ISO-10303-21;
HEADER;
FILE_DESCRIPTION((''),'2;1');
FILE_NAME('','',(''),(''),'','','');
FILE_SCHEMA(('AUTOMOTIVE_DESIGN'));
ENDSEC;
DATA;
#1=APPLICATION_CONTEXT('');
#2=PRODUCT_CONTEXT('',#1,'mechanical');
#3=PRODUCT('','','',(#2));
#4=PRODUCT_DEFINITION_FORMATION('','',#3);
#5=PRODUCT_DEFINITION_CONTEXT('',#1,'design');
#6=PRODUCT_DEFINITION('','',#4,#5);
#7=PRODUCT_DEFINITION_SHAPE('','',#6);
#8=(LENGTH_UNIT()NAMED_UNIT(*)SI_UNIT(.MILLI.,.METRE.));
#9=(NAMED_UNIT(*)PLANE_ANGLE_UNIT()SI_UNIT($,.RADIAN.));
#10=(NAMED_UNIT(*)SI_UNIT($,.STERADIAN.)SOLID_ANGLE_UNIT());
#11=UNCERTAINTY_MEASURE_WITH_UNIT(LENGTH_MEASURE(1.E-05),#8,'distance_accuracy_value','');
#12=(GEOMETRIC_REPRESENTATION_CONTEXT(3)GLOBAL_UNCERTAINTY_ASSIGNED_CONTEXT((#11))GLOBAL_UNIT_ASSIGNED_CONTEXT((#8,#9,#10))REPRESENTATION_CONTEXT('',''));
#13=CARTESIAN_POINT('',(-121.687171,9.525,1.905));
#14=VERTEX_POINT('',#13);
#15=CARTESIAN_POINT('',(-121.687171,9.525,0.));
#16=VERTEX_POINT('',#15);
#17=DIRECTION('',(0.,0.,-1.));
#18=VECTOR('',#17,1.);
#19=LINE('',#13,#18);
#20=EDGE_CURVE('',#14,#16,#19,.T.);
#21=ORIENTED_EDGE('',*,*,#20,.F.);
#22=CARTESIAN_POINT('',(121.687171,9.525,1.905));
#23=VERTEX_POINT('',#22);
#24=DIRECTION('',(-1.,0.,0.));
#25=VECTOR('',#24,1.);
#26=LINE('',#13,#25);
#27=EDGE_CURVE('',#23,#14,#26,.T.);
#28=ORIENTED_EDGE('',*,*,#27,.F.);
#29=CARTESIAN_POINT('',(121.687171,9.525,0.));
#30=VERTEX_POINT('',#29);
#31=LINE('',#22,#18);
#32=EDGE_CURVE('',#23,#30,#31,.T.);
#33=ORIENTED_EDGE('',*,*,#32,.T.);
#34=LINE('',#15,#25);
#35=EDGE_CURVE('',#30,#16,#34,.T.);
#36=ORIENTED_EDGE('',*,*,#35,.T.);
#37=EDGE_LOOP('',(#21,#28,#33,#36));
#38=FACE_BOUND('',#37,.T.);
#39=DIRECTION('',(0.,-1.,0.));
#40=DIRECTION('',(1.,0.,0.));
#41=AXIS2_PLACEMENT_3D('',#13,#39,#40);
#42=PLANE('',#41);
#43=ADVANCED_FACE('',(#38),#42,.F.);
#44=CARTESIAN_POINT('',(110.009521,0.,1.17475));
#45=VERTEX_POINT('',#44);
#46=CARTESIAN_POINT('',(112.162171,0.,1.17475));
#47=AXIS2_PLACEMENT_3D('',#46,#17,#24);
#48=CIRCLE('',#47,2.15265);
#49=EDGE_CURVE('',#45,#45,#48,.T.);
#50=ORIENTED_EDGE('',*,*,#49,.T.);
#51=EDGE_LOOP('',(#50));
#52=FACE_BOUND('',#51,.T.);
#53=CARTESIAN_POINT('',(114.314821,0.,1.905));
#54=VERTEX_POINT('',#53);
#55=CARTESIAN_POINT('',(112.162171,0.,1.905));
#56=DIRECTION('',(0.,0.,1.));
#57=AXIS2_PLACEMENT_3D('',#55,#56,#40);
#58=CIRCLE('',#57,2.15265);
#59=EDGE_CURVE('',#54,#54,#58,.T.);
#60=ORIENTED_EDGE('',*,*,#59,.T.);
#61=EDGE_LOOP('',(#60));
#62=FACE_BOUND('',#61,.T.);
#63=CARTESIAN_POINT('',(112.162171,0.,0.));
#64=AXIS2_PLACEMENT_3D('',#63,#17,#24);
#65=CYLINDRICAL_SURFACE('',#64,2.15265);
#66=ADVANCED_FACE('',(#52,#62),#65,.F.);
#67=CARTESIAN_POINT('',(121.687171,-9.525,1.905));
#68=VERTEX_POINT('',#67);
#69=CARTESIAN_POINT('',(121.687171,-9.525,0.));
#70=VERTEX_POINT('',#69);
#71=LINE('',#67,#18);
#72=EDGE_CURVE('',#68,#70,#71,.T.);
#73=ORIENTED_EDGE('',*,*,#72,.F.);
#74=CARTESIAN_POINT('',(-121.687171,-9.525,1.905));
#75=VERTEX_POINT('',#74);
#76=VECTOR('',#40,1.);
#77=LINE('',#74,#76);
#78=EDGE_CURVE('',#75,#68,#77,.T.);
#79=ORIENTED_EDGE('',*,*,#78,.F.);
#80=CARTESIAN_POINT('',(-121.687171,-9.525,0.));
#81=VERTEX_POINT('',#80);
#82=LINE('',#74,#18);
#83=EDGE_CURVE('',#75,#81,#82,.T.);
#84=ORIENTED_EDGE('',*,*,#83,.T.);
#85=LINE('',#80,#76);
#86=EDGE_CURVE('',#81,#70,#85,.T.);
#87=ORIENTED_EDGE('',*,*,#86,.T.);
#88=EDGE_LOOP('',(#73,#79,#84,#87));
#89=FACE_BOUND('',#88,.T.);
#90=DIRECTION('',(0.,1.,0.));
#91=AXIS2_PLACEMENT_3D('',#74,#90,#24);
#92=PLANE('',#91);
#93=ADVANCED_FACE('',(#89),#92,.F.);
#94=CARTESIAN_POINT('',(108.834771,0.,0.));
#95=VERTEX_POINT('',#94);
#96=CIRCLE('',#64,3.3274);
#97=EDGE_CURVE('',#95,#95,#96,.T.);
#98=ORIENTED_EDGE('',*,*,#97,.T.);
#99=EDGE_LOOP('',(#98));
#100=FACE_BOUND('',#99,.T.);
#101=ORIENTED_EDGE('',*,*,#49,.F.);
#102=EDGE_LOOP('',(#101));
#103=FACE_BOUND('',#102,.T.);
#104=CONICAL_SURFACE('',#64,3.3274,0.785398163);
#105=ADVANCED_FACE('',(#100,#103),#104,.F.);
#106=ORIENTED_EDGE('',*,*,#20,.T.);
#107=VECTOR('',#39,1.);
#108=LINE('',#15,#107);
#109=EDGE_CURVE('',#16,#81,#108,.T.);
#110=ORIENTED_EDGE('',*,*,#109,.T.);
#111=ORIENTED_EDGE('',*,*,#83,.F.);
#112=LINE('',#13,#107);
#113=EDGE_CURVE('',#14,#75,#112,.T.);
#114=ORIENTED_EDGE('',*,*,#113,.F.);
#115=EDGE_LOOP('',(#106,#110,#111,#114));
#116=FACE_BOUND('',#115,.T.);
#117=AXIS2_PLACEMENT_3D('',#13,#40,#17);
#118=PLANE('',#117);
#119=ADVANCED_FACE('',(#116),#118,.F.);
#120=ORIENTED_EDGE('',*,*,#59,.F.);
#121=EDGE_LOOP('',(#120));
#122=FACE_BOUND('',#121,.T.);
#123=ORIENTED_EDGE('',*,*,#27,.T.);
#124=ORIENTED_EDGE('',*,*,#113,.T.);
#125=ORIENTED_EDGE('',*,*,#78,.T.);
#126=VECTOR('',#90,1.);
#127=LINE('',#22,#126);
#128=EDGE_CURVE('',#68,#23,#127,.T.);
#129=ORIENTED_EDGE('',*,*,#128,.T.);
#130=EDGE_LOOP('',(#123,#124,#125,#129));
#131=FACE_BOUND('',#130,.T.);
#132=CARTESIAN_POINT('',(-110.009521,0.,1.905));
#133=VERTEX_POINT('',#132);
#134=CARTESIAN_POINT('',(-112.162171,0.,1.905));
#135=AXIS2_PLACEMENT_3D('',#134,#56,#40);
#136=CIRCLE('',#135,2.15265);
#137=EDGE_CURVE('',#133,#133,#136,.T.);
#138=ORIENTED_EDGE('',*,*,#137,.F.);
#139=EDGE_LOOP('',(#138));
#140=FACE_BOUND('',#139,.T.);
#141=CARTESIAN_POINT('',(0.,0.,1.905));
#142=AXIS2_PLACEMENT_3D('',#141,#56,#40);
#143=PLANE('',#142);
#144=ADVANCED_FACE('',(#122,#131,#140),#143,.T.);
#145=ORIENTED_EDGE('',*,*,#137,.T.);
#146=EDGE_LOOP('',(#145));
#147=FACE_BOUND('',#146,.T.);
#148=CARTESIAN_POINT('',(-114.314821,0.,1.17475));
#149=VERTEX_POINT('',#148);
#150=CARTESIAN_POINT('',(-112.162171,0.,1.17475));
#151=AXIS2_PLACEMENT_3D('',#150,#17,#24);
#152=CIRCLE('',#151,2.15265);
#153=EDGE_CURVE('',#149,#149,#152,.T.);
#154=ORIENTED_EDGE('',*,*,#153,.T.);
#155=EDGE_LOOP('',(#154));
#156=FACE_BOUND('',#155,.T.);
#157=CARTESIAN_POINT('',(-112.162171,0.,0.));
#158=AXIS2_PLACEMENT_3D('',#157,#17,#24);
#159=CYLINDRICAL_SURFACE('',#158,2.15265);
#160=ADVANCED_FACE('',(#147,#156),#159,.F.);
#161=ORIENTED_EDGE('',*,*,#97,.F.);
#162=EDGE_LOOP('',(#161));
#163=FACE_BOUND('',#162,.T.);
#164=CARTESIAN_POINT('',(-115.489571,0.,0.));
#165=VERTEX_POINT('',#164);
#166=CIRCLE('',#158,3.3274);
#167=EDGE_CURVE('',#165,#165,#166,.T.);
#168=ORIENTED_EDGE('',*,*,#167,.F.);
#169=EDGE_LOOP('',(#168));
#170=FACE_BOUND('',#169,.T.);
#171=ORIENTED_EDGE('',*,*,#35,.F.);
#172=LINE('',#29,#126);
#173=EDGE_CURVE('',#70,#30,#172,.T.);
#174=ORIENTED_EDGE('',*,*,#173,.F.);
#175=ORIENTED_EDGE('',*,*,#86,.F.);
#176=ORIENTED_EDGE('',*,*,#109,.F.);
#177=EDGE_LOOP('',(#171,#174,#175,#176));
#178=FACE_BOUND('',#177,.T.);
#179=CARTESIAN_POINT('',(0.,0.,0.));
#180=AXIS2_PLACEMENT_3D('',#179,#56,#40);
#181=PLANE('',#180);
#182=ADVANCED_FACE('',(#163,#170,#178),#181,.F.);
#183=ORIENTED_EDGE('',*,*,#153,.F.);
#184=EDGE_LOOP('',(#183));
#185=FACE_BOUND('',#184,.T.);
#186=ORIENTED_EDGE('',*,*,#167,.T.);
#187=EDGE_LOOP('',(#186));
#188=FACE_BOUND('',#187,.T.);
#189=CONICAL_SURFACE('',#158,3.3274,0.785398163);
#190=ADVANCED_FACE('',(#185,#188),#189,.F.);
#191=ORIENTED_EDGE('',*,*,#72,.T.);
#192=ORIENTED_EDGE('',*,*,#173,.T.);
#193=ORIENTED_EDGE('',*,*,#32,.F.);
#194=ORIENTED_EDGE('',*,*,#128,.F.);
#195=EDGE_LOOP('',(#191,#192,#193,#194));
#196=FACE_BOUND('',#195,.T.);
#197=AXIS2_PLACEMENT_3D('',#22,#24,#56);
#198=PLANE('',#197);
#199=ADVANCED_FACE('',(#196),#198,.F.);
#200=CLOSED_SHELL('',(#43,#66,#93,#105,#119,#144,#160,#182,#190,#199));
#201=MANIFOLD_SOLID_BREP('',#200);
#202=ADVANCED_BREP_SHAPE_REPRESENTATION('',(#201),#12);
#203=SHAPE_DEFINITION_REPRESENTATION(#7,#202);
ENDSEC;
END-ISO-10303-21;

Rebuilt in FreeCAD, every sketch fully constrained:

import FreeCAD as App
import Part
import Sketcher
Q = App.Units.Quantity


def add_polygon(sketch, points):
    """Adds a closed chain of lines whose ends are joined by coincident constraints."""
    first, n = sketch.GeometryCount, len(points)
    for a, b in zip(points, points[1:] + points[:1]):
        sketch.addGeometry(Part.LineSegment(App.Vector(*a, 0), App.Vector(*b, 0)), False)
    for i in range(n):
        sketch.addConstraint(Sketcher.Constraint("Coincident", first + i, 2, first + (i + 1) % n, 1))

doc = App.newDocument("Part")
body = doc.addObject("PartDesign::Body", "Body")

sketch1 = doc.addObject("Sketcher::SketchObject", "Sketch")
body.addObject(sketch1)
sketch1.AttachmentSupport = (doc.XY_Plane, [""])
sketch1.MapMode = "FlatFace"
add_polygon(sketch1, [(-122, 10), (-122, -10), (122, -10), (122, 10)])
sketch1.addConstraint(Sketcher.Constraint("Vertical", 0))
sketch1.addConstraint(Sketcher.Constraint("Horizontal", 1))
sketch1.addConstraint(Sketcher.Constraint("Vertical", 2))
sketch1.addConstraint(Sketcher.Constraint("Horizontal", 3))
sketch1.addConstraint(Sketcher.Constraint("Symmetric", 0, 2, 2, 2, -1, 1))
sketch1.addConstraint(Sketcher.Constraint("DistanceY", 0, 2, 0, 1, Q("0.75 in")))
sketch1.addConstraint(Sketcher.Constraint("DistanceX", 1, 1, 1, 2, Q("243.374342 mm")))
pad1 = doc.addObject("PartDesign::Pad", "Pad")
body.addObject(pad1)
pad1.Profile = sketch1
pad1.Length = Q("0.075 in")

sketch2 = doc.addObject("Sketcher::SketchObject", "Sketch001")
body.addObject(sketch2)
sketch2.AttachmentSupport = (doc.YZ_Plane, [""])
sketch2.MapMode = "FlatFace"
sketch2.AttachmentOffset = App.Placement(App.Vector(0, 0, -112.162171), App.Rotation())
add_polygon(sketch2, [(0, 1.9), (0, 0), (3.3, 0), (2.2, 1.2), (2.2, 1.9)])
sketch2.addConstraint(Sketcher.Constraint("Vertical", 0))
sketch2.addConstraint(Sketcher.Constraint("Horizontal", 1))
sketch2.addConstraint(Sketcher.Constraint("Vertical", 3))
sketch2.addConstraint(Sketcher.Constraint("Horizontal", 4))
sketch2.addConstraint(Sketcher.Constraint("Coincident", 0, 2, -1, 1))
sketch2.addConstraint(Sketcher.Constraint("Angle", 2, Q("135 deg")))
sketch2.addConstraint(Sketcher.Constraint("DistanceX", 1, 1, 1, 2, Q("0.131 in")))
sketch2.addConstraint(Sketcher.Constraint("DistanceY", 0, 2, 0, 1, Q("0.075 in")))
sketch2.addConstraint(Sketcher.Constraint("DistanceX", 4, 2, 4, 1, Q("2.15265 mm")))
groove = doc.addObject("PartDesign::Groove", "Groove")
body.addObject(groove)
groove.Profile = sketch2
groove.ReferenceAxis = (sketch2, ["V_Axis"])
groove.Angle = 360
doc.recompute()

linearpattern = doc.addObject("PartDesign::LinearPattern", "LinearPattern")
body.addObject(linearpattern)
linearpattern.Originals = [groove]
linearpattern.Direction = (doc.X_Axis, [""])
linearpattern.Mode = "offset"
linearpattern.Offset = 224.324342
linearpattern.Occurrences = 2
body.Tip = linearpattern

doc.recompute()
